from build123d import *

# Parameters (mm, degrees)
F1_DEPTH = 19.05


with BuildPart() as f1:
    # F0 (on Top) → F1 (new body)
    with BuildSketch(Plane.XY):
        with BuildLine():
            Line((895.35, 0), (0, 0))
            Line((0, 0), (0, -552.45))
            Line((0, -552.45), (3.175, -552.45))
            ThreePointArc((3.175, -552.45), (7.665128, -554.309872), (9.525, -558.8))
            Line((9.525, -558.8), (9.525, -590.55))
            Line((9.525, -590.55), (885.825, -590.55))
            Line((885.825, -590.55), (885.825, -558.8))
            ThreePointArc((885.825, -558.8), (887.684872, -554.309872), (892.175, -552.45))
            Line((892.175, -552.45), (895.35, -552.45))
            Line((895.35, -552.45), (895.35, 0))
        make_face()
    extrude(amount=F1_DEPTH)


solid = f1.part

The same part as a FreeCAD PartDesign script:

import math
import FreeCAD as App
import Part
import Sketcher

V = App.Vector
Q = App.Units.Quantity

doc = App.newDocument("Part")
params = doc.addObject("Spreadsheet::Sheet", "Params")
for row, (alias, value) in enumerate([
    ("sketch1_radius", "0.25 in"),
    ("sketch1_width", "34.5 in"),
    ("sketch1_width2", "35.25 in"),
    ("sketch1_height", "1.25 in"),
    ("pad1_length", "0.75 in"),
], start=1):
    params.set(f"A{row}", alias)
    params.set(f"B{row}", "=" + value)
    params.setAlias(f"B{row}", alias)

body = doc.addObject("PartDesign::Body", "Body")

sketch1 = body.newObject("Sketcher::SketchObject", "Sketch")
sketch1.AttachmentSupport = (doc.getObject("XY_Plane"), [""])
sketch1.MapMode = "FlatFace"
sketch1.addGeometry(Part.LineSegment(V(895.35, 0, 0), V(0, 0, 0)), False)
sketch1.addGeometry(Part.LineSegment(V(0, 0, 0), V(0, -552.45, 0)), False)
sketch1.addGeometry(Part.LineSegment(V(0, -552.45, 0), V(3.175, -552.45, 0)), False)
sketch1.addGeometry(Part.ArcOfCircle(Part.Circle(V(3.175, -558.8, 0), V(0, 0, 1), 6.35), math.radians(0.000002), math.radians(89.999998)), False)
sketch1.addGeometry(Part.LineSegment(V(9.525, -558.8, 0), V(9.525, -590.55, 0)), False)
sketch1.addGeometry(Part.LineSegment(V(9.525, -590.55, 0), V(885.825, -590.55, 0)), False)
sketch1.addGeometry(Part.LineSegment(V(885.825, -590.55, 0), V(885.825, -558.8, 0)), False)
sketch1.addGeometry(Part.ArcOfCircle(Part.Circle(V(892.175, -558.8, 0), V(0, 0, 1), 6.35), math.radians(90.000002), math.radians(179.999998)), False)
sketch1.addGeometry(Part.LineSegment(V(892.175, -552.45, 0), V(895.35, -552.45, 0)), False)
sketch1.addGeometry(Part.LineSegment(V(895.35, -552.45, 0), V(895.35, 0, 0)), False)
sketch1.addConstraint(Sketcher.Constraint("Coincident", 0, 2, 1, 1))
sketch1.addConstraint(Sketcher.Constraint("Coincident", 1, 2, 2, 1))
sketch1.addConstraint(Sketcher.Constraint("Tangent", 2, 2, 3, 2))
sketch1.addConstraint(Sketcher.Constraint("Tangent", 3, 1, 4, 1))
sketch1.addConstraint(Sketcher.Constraint("Coincident", 4, 2, 5, 1))
sketch1.addConstraint(Sketcher.Constraint("Coincident", 5, 2, 6, 1))
sketch1.addConstraint(Sketcher.Constraint("Tangent", 6, 2, 7, 2))
sketch1.addConstraint(Sketcher.Constraint("Tangent", 7, 1, 8, 1))
sketch1.addConstraint(Sketcher.Constraint("Coincident", 8, 2, 9, 1))
sketch1.addConstraint(Sketcher.Constraint("Coincident", 9, 2, 0, 1))
sketch1.addConstraint(Sketcher.Constraint("Horizontal", 0))
sketch1.addConstraint(Sketcher.Constraint("Vertical", 1))
sketch1.addConstraint(Sketcher.Constraint("Horizontal", 2))
sketch1.addConstraint(Sketcher.Constraint("Vertical", 4))
sketch1.addConstraint(Sketcher.Constraint("Horizontal", 5))
sketch1.addConstraint(Sketcher.Constraint("Vertical", 6))
sketch1.addConstraint(Sketcher.Constraint("Horizontal", 8))
sketch1.addConstraint(Sketcher.Constraint("Vertical", 9))
sketch1.addConstraint(Sketcher.Constraint("Coincident", 0, 2, -1, 1))
sketch1.addConstraint(Sketcher.Constraint("Equal", 3, 7))
sketch1.addConstraint(Sketcher.Constraint("Horizontal", 3, 3, 7, 3))
sketch1.addConstraint(Sketcher.Constraint("Equal", 2, 8))
sketch1.addConstraint(Sketcher.Constraint("Radius", 3, Q("0.25 in")))
sketch1.addConstraint(Sketcher.Constraint("DistanceX", 5, 1, 5, 2, Q("34.5 in")))
sketch1.addConstraint(Sketcher.Constraint("DistanceY", 3, 3, -1, 1, Q("22 in")))
sketch1.addConstraint(Sketcher.Constraint("DistanceX", 0, 2, 0, 1, Q("35.25 in")))
sketch1.addConstraint(Sketcher.Constraint("DistanceY", 4, 2, 4, 1, Q("1.25 in")))
sketch1.setExpression("Constraints[22]", "Params.sketch1_radius")
sketch1.setExpression("Constraints[23]", "Params.sketch1_width")
sketch1.setExpression("Constraints[25]", "Params.sketch1_width2")
sketch1.setExpression("Constraints[26]", "Params.sketch1_height")
pad1 = body.newObject("PartDesign::Pad", "Pad")
pad1.Profile = sketch1
pad1.setExpression("Length", "Params.pad1_length")

doc.recompute()
